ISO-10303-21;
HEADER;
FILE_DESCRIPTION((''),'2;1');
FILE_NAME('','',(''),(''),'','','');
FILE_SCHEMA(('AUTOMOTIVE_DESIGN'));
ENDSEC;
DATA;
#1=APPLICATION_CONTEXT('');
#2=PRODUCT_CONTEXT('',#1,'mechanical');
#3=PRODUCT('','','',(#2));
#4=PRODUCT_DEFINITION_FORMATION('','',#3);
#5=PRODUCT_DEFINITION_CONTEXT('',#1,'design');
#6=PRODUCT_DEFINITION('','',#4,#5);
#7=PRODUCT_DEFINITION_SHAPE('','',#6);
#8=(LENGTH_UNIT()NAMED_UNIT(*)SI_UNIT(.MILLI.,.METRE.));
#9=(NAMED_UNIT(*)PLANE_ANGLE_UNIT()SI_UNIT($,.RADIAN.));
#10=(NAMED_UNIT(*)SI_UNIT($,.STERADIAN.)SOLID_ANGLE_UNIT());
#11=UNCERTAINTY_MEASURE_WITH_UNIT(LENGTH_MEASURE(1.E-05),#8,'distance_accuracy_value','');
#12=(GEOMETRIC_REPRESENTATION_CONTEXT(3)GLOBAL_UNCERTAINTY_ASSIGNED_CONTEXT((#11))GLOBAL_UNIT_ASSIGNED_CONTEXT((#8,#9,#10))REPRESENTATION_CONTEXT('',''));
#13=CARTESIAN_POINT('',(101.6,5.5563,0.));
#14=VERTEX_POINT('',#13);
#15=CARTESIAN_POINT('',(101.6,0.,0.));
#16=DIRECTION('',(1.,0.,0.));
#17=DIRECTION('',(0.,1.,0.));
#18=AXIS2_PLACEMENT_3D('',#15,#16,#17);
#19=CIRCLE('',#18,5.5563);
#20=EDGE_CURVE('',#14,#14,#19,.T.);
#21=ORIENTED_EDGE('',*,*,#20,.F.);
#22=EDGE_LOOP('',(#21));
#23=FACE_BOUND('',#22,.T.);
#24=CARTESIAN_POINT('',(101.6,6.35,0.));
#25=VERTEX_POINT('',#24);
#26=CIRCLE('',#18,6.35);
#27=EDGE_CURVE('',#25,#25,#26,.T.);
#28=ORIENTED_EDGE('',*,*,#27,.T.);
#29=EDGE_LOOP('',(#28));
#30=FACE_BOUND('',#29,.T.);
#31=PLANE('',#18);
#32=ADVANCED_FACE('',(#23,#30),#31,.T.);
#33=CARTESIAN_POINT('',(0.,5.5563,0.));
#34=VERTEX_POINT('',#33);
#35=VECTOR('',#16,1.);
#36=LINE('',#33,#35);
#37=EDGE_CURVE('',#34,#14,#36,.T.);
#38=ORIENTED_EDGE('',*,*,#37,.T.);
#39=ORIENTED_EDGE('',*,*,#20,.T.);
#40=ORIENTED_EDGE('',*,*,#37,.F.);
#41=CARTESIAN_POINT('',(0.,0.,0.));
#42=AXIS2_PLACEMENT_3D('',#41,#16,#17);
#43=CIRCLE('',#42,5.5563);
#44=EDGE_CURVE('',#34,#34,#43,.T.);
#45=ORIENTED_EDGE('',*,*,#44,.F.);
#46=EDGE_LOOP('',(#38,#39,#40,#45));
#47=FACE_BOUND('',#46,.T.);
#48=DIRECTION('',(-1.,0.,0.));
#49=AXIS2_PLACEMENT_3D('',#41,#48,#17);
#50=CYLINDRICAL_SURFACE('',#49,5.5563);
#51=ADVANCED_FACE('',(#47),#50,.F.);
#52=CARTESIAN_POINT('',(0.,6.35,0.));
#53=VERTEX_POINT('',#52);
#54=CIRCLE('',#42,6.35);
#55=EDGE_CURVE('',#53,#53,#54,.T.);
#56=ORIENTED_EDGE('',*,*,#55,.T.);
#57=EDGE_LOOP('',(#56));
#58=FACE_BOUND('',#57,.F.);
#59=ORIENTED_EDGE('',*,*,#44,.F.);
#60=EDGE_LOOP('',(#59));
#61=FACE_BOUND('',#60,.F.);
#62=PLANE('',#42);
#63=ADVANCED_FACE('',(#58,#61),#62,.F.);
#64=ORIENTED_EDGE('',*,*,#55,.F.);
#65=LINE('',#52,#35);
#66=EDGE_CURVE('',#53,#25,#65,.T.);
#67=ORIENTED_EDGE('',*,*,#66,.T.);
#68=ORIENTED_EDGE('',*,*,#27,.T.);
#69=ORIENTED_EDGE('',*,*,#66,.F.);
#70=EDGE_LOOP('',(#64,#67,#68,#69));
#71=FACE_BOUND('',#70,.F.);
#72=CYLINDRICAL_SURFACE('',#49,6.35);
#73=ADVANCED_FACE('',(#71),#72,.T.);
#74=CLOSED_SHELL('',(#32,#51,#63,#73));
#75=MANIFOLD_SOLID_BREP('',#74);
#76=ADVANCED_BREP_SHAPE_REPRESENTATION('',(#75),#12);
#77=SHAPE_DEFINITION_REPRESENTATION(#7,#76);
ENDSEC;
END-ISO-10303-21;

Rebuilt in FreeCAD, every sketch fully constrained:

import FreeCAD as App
import Part
import Sketcher
Q = App.Units.Quantity

doc = App.newDocument("Part")
body = doc.addObject("PartDesign::Body", "Body")

sketch1 = body.newObject("Sketcher::SketchObject", "Sketch")
sketch1.AttachmentSupport = (doc.getObject("YZ_Plane"), [""])
sketch1.MapMode = "FlatFace"
sketch1.addGeometry(Part.Circle(App.Vector(0, 0, 0), App.Vector(0, 0, 1), 6.35), False)
sketch1.addGeometry(Part.Circle(App.Vector(0, 0, 0), App.Vector(0, 0, 1), 5.5563), False)
sketch1.addConstraint(Sketcher.Constraint("Coincident", 0, 3, -1, 1))
sketch1.addConstraint(Sketcher.Constraint("Coincident", 1, 3, -1, 1))
sketch1.addConstraint(Sketcher.Constraint("Diameter", 0, Q("0.5 in")))
sketch1.addConstraint(Sketcher.Constraint("Diameter", 1, Q("0.4375 in")))
pad1 = body.newObject("PartDesign::Pad", "Pad")
pad1.Profile = sketch1
pad1.Length = Q("4 in")

doc.recompute()
